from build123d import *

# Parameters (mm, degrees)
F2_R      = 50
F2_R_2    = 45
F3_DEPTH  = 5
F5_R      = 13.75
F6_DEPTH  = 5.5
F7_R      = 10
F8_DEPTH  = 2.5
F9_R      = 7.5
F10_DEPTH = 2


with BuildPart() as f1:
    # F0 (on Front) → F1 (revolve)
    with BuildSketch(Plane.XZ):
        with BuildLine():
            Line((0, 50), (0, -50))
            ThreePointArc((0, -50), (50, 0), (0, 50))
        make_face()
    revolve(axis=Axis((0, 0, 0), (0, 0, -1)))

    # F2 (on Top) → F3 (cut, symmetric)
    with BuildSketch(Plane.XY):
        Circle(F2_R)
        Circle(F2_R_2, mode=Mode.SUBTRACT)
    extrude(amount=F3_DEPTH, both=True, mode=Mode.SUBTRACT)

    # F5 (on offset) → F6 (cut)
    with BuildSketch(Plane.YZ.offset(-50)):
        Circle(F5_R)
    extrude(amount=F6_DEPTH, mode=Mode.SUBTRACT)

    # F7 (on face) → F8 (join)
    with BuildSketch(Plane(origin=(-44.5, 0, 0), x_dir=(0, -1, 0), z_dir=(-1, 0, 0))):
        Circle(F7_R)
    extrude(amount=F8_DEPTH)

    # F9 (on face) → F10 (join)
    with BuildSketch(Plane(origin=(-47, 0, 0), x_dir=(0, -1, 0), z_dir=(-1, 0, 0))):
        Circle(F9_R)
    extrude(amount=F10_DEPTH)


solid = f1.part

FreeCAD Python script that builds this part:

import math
import FreeCAD as App
import Part
import Sketcher
from FreeCAD import Vector
Q = App.Units.Quantity

doc = App.newDocument("Part")
body = doc.addObject("PartDesign::Body", "Body")

# Sketch on XZ plane
sketch1 = body.newObject("Sketcher::SketchObject", "Sketch")
sketch1.AttachmentSupport = (doc.getObject("XZ_Plane"), [""])
sketch1.MapMode = "FlatFace"
sketch1.addGeometry(Part.LineSegment(Vector(0, 50, 0), Vector(0, -50, 0)), False)
sketch1.addGeometry(Part.ArcOfCircle(Part.Circle(Vector(0, 0, 0), Vector(0, 0, 1), 50), math.radians(-90), math.radians(90)), False)
sketch1.addConstraint(Sketcher.Constraint("Coincident", 0, 1, 1, 2))
sketch1.addConstraint(Sketcher.Constraint("Coincident", 1, 1, 0, 2))
sketch1.addConstraint(Sketcher.Constraint("Vertical", 0))
sketch1.addConstraint(Sketcher.Constraint("Coincident", 1, 3, -1, 1))
sketch1.addConstraint(Sketcher.Constraint("PointOnObject", 0, 1, -2))
sketch1.addConstraint(Sketcher.Constraint("Radius", 1, Q("50 mm")))
revolution = body.newObject("PartDesign::Revolution", "Revolution")
revolution.Profile = sketch1
revolution.ReferenceAxis = (sketch1, ["V_Axis"])
revolution.Angle = 360

# Sketch on XY plane
sketch2 = body.newObject("Sketcher::SketchObject", "Sketch001")
sketch2.AttachmentSupport = (doc.getObject("XY_Plane"), [""])
sketch2.MapMode = "FlatFace"
sketch2.addGeometry(Part.Circle(Vector(0, 0, 0), Vector(0, 0, 1), 50), False)
sketch2.addGeometry(Part.Circle(Vector(0, 0, 0), Vector(0, 0, 1), 45), False)
sketch2.addConstraint(Sketcher.Constraint("Coincident", 0, 3, -1, 1))
sketch2.addConstraint(Sketcher.Constraint("Coincident", 1, 3, -1, 1))
sketch2.addConstraint(Sketcher.Constraint("Diameter", 0, Q("100 mm")))
sketch2.addConstraint(Sketcher.Constraint("Diameter", 1, Q("90 mm")))
pocket1 = body.newObject("PartDesign::Pocket", "Pocket")
pocket1.Profile = sketch2
pocket1.Length = 10
pocket1.Midplane = True

# Sketch on YZ plane
sketch3 = body.newObject("Sketcher::SketchObject", "Sketch002")
sketch3.AttachmentSupport = (doc.getObject("YZ_Plane"), [""])
sketch3.MapMode = "FlatFace"
sketch3.AttachmentOffset = App.Placement(Vector(0, 0, -50), App.Rotation())
sketch3.addGeometry(Part.Circle(Vector(0, 0, 0), Vector(0, 0, 1), 14), False)
sketch3.addConstraint(Sketcher.Constraint("Coincident", 0, 3, -1, 1))
sketch3.addConstraint(Sketcher.Constraint("Diameter", 0, Q("27.5 mm")))
pocket2 = body.newObject("PartDesign::Pocket", "Pocket001")
pocket2.Profile = sketch3
pocket2.Length = 5.5
pocket2.Reversed = True

# Sketch on YZ plane
sketch4 = body.newObject("Sketcher::SketchObject", "Sketch003")
sketch4.AttachmentSupport = (doc.getObject("YZ_Plane"), [""])
sketch4.MapMode = "FlatFace"
sketch4.AttachmentOffset = App.Placement(Vector(0, 0, -44.5), App.Rotation())
sketch4.addGeometry(Part.Circle(Vector(0, 0, 0), Vector(0, 0, 1), 10), False)
sketch4.addConstraint(Sketcher.Constraint("Coincident", 0, 3, -1, 1))
sketch4.addConstraint(Sketcher.Constraint("Diameter", 0, Q("20 mm")))
pad1 = body.newObject("PartDesign::Pad", "Pad")
pad1.Profile = sketch4
pad1.Length = 2.5
pad1.Reversed = True

# Sketch on YZ plane
sketch5 = body.newObject("Sketcher::SketchObject", "Sketch004")
sketch5.AttachmentSupport = (doc.getObject("YZ_Plane"), [""])
sketch5.MapMode = "FlatFace"
sketch5.AttachmentOffset = App.Placement(Vector(0, 0, -47), App.Rotation())
sketch5.addGeometry(Part.Circle(Vector(0, 0, 0), Vector(0, 0, 1), 8), False)
sketch5.addConstraint(Sketcher.Constraint("Coincident", 0, 3, -1, 1))
sketch5.addConstraint(Sketcher.Constraint("Diameter", 0, Q("15 mm")))
pad2 = body.newObject("PartDesign::Pad", "Pad001")
pad2.Profile = sketch5
pad2.Length = 2
pad2.Reversed = True

doc.recompute()
